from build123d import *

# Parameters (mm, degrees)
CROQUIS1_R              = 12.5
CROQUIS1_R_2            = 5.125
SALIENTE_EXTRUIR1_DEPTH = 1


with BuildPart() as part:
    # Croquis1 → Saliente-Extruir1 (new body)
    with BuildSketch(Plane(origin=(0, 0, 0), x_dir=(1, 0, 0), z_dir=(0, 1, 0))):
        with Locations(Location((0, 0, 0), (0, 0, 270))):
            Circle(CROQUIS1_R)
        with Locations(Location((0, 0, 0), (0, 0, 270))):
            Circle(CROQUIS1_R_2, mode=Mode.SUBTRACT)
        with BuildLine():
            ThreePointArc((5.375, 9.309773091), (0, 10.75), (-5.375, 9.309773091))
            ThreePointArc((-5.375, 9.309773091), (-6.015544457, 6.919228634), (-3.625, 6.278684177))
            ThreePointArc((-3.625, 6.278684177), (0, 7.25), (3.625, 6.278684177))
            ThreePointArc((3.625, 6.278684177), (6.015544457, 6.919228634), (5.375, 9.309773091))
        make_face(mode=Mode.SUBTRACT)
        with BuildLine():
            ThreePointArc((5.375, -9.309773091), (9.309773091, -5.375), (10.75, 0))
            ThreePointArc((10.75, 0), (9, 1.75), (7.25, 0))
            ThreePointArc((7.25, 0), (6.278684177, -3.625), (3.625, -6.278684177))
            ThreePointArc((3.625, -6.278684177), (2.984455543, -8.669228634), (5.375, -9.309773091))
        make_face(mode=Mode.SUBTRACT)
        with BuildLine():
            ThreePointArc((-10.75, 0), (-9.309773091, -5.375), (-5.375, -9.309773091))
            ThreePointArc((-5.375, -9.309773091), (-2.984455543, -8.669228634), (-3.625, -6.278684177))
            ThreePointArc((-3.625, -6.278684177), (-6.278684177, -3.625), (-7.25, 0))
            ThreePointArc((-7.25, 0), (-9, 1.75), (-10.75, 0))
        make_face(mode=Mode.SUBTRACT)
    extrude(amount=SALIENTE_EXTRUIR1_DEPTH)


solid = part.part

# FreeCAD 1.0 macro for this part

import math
import FreeCAD as App
import Part
import Sketcher
Q = App.Units.Quantity

doc = App.newDocument("Part")
body = doc.addObject("PartDesign::Body", "Body")

# Sketch on XZ plane
sketch1 = body.newObject("Sketcher::SketchObject", "Sketch")
sketch1.AttachmentSupport = (doc.getObject("XZ_Plane"), [""])
sketch1.MapMode = "FlatFace"
sketch1.addGeometry([
    Part.Circle(App.Vector(0, 0, 0), App.Vector(0, 0, 1), 12.5),  # 0
    Part.ArcOfCircle(Part.Circle(App.Vector(0, 0, 0), App.Vector(0, 0, 1), 10.8), math.radians(-120), math.radians(-60)),  # 1
    Part.ArcOfCircle(Part.Circle(App.Vector(4.5, -7.8, 0), App.Vector(0, 0, 1), 1.8), math.radians(-60), math.radians(120)),  # 2
    Part.ArcOfCircle(Part.Circle(App.Vector(0, 0, 0), App.Vector(0, 0, 1), 7.2), math.radians(-120), math.radians(-60)),  # 3
    Part.ArcOfCircle(Part.Circle(App.Vector(-4.5, -7.8, 0), App.Vector(0, 0, 1), 1.8), math.radians(60), math.radians(240)),  # 4
    Part.ArcOfCircle(Part.Circle(App.Vector(0, 0, 0), App.Vector(0, 0, 1), 10.7), math.radians(120), math.radians(180)),  # 5
    Part.ArcOfCircle(Part.Circle(App.Vector(-9, 0, 0), App.Vector(0, 0, 1), 1.8), math.radians(180), math.radians(360)),  # 6
    Part.ArcOfCircle(Part.Circle(App.Vector(0, 0, 0), App.Vector(0, 0, 1), 7.3), math.radians(120), math.radians(180)),  # 7
    Part.ArcOfCircle(Part.Circle(App.Vector(-4.5, 7.8, 0), App.Vector(0, 0, 1), 1.8), math.radians(-60), math.radians(120)),  # 8
    Part.Circle(App.Vector(0, 0, 0), App.Vector(0, 0, 1), 5.1),  # 9
    Part.ArcOfCircle(Part.Circle(App.Vector(0, 0, 0), App.Vector(0, 0, 1), 10.7), math.radians(0), math.radians(60)),  # 10
    Part.ArcOfCircle(Part.Circle(App.Vector(4.5, 7.8, 0), App.Vector(0, 0, 1), 1.8), math.radians(60), math.radians(240)),  # 11
    Part.ArcOfCircle(Part.Circle(App.Vector(0, 0, 0), App.Vector(0, 0, 1), 7.3), math.radians(0), math.radians(60)),  # 12
    Part.ArcOfCircle(Part.Circle(App.Vector(9, 0, 0), App.Vector(0, 0, 1), 1.8), math.radians(180), math.radians(360)),  # 13
], False)
sketch1.addConstraint([
    Sketcher.Constraint("Tangent", 1, 2, 2, 1),
    Sketcher.Constraint("Tangent", 2, 2, 3, 2),
    Sketcher.Constraint("Tangent", 3, 1, 4, 1),
    Sketcher.Constraint("Tangent", 4, 2, 1, 1),
    Sketcher.Constraint("Tangent", 5, 2, 6, 1),
    Sketcher.Constraint("Tangent", 6, 2, 7, 2),
    Sketcher.Constraint("Tangent", 7, 1, 8, 1),
    Sketcher.Constraint("Tangent", 8, 2, 5, 1),
    Sketcher.Constraint("Tangent", 10, 2, 11, 1),
    Sketcher.Constraint("Tangent", 11, 2, 12, 2),
    Sketcher.Constraint("Tangent", 12, 1, 13, 1),
    Sketcher.Constraint("Tangent", 13, 2, 10, 1),
    Sketcher.Constraint("Coincident", 0, 3, -1, 1),
    Sketcher.Constraint("Coincident", 1, 3, -1, 1),
    Sketcher.Constraint("Coincident", 3, 3, -1, 1),
    Sketcher.Constraint("Coincident", 5, 3, -1, 1),
    Sketcher.Constraint("Coincident", 7, 3, -1, 1),
    Sketcher.Constraint("Coincident", 9, 3, -1, 1),
    Sketcher.Constraint("Coincident", 10, 3, -1, 1),
    Sketcher.Constraint("Coincident", 12, 3, -1, 1),
    Sketcher.Constraint("Equal", 1, 5),
    Sketcher.Constraint("Equal", 4, 6),
    Sketcher.Constraint("Equal", 5, 10),
    Sketcher.Constraint("Equal", 8, 11),
    Sketcher.Constraint("PointOnObject", 6, 3, -1),
    Sketcher.Constraint("PointOnObject", 13, 3, -1),
    Sketcher.Constraint("Horizontal", 2, 3, 4, 3),
    Sketcher.Constraint("Horizontal", 8, 3, 11, 3),
    Sketcher.Constraint("Vertical", 4, 3, 8, 3),
    Sketcher.Constraint("Diameter", 0, Q("25 mm")),
    Sketcher.Constraint("Diameter", 9, Q("10.25 mm")),
    Sketcher.Constraint("Radius", 1, Q("10.75 mm")),
    Sketcher.Constraint("Radius", 2, Q("1.75 mm")),
    Sketcher.Constraint("DistanceX", 4, 3, 2, 3, Q("9 mm")),
])
pad1 = body.newObject("PartDesign::Pad", "Pad")
pad1.Profile = sketch1
pad1.Length = 1
pad1.Reversed = True

doc.recompute()
